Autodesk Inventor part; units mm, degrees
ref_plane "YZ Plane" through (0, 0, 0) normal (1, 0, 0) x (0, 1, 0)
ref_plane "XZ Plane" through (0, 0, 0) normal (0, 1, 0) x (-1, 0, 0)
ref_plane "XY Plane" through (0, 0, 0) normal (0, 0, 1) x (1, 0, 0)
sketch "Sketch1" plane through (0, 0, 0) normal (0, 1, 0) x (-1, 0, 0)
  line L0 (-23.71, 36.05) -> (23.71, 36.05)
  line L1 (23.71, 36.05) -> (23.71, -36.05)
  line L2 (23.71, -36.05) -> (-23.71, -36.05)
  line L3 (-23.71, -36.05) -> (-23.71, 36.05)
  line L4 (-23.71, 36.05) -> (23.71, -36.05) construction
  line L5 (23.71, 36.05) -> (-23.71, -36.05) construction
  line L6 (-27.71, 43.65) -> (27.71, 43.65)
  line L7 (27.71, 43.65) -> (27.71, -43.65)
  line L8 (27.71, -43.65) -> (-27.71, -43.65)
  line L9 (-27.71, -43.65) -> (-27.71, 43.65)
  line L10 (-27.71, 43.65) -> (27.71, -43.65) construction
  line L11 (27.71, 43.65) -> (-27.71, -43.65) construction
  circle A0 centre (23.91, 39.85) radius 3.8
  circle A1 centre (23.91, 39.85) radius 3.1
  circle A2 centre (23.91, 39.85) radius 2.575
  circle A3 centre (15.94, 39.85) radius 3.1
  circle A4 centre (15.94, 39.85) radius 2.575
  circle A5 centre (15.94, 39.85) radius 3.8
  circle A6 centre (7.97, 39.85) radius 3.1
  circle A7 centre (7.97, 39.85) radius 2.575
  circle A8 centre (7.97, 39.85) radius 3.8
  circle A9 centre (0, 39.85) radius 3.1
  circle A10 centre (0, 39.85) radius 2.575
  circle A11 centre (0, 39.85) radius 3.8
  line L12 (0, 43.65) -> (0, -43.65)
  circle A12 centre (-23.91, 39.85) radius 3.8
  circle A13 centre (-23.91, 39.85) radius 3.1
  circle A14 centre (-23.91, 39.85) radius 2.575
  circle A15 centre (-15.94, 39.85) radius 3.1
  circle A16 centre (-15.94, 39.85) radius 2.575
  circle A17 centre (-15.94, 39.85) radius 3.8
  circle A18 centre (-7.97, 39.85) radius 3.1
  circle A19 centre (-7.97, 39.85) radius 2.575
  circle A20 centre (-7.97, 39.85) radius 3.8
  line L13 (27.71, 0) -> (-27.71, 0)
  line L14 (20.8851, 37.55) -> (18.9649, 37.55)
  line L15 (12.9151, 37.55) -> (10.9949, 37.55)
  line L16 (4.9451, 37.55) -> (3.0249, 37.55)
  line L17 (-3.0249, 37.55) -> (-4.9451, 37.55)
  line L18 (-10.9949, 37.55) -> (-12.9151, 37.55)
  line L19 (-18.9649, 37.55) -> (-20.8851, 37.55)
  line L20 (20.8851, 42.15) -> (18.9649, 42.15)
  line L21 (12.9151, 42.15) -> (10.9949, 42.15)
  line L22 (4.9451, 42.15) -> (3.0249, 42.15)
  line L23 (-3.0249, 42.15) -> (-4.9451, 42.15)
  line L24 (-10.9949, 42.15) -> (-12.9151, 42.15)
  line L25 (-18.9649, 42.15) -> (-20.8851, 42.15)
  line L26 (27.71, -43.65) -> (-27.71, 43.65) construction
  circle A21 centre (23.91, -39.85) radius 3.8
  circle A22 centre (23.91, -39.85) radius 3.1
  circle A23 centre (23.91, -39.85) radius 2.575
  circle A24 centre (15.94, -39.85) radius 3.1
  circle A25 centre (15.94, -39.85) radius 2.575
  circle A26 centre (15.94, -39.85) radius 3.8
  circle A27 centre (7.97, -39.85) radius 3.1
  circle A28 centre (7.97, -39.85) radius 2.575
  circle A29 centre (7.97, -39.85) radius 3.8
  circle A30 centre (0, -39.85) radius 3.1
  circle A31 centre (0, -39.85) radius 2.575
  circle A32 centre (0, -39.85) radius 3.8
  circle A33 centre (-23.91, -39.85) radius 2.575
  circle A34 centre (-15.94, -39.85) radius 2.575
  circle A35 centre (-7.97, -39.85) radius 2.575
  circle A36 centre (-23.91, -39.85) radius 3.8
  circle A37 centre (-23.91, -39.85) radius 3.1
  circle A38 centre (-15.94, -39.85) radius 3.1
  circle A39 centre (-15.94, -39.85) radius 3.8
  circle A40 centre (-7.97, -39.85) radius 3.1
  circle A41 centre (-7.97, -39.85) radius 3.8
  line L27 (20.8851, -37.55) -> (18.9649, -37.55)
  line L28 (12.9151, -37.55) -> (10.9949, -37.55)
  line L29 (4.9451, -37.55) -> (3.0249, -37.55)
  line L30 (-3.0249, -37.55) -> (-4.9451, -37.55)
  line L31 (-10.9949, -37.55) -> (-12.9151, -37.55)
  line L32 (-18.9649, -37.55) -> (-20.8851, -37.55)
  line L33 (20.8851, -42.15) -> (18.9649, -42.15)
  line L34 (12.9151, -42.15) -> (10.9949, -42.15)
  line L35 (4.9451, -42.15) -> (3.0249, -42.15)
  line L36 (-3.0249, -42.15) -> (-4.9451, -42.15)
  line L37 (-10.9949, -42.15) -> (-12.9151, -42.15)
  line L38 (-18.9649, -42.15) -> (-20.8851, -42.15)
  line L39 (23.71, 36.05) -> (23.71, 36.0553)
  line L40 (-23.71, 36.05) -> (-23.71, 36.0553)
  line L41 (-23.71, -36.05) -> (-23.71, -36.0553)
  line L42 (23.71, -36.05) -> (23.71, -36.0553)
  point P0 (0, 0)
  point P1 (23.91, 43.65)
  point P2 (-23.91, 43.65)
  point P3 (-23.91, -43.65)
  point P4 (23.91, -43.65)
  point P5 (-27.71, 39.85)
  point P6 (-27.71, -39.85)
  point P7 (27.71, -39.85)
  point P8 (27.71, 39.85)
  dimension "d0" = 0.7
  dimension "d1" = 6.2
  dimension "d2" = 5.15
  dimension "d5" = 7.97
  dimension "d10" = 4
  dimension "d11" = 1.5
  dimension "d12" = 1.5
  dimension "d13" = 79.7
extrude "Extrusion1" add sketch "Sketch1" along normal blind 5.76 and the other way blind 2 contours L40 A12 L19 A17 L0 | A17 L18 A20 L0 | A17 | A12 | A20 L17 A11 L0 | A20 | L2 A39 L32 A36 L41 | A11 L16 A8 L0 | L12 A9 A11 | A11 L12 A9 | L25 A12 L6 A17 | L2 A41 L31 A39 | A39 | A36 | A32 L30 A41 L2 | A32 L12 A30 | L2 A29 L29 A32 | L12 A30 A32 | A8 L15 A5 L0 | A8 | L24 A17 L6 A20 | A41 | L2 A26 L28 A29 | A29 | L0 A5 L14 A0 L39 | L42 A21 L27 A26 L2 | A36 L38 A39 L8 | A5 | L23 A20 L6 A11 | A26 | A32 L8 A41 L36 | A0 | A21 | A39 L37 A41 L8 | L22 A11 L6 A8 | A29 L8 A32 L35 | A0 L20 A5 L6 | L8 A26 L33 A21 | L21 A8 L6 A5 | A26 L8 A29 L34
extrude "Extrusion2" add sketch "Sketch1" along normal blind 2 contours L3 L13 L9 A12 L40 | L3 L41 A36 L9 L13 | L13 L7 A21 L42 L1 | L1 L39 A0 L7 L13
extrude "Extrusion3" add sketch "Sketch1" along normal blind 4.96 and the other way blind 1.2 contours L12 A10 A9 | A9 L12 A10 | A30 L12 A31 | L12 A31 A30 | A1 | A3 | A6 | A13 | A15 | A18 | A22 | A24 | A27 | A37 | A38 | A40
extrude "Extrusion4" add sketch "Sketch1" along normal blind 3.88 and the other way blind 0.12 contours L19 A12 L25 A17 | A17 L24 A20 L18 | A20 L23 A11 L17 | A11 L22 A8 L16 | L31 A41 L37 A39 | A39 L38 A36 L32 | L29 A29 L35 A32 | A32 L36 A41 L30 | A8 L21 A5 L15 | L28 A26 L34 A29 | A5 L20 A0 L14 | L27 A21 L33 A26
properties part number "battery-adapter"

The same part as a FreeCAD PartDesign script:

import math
import FreeCAD as App
import Part
import Sketcher

V = App.Vector
Q = App.Units.Quantity

doc = App.newDocument("Part")
params = doc.addObject("Spreadsheet::Sheet", "Params")
for row, (alias, value) in enumerate([
    ("sketch1_diameter", "6.2 mm"),
    ("sketch1_radius", "3.8 mm"),
    ("sketch1_width", "47.42 mm"),
    ("pad1_length", "5.76 mm"),
    ("pad1_length2", "2 mm"),
    ("sketch2_height", "79.7 mm"),
    ("sketch2_radius", "3.8 mm"),
    ("pad2_length", "2 mm"),
    ("sketch3_diameter", "6.2 mm"),
    ("sketch3_diameter2", "5.15 mm"),
    ("pad3_length", "4.96 mm"),
    ("pad3_length2", "1.2 mm"),
    ("sketch4_radius", "3.8 mm"),
    ("pad4_length", "3.88 mm"),
    ("pad4_length2", "0.12 mm"),
], start=1):
    params.set(f"A{row}", alias)
    params.set(f"B{row}", "=" + value)
    params.setAlias(f"B{row}", alias)

body = doc.addObject("PartDesign::Body", "Body")
body.AllowCompound = True

sketch1 = doc.addObject("Sketcher::SketchObject", "Sketch")
body.addObject(sketch1)
sketch1.AttachmentSupport = (doc.XZ_Plane, [""])
sketch1.MapMode = "FlatFace"
sketch1.addGeometry([
    Part.LineSegment(V(23.71, 36.055, 0), V(23.71, 36.05, 0)),
    Part.LineSegment(V(23.71, 36.05, 0), V(-23.71, 36.05, 0)),
    Part.LineSegment(V(-23.71, 36.05, 0), V(-23.71, 36.055, 0)),
    Part.ArcOfCircle(Part.Circle(V(-23.91, 39.85, 0), V(0, 0, 1), 3.8), math.radians(90), math.radians(273)),
    Part.LineSegment(V(-23.91, 43.65, 0), V(23.91, 43.65, 0)),
    Part.ArcOfCircle(Part.Circle(V(23.91, 39.85, 0), V(0, 0, 1), 3.8), math.radians(-93), math.radians(90)),
    Part.LineSegment(V(18.965, 37.55, 0), V(20.885, 37.55, 0)),
    Part.ArcOfCircle(Part.Circle(V(23.91, 39.85, 0), V(0, 0, 1), 3.8), math.radians(143), math.radians(217)),
    Part.LineSegment(V(20.885, 42.15, 0), V(18.965, 42.15, 0)),
    Part.ArcOfCircle(Part.Circle(V(15.94, 39.85, 0), V(0, 0, 1), 3.8), math.radians(-37), math.radians(37)),
    Part.Circle(V(23.91, 39.85, 0), V(0, 0, 1), 3.1),
    Part.Circle(V(15.94, 39.85, 0), V(0, 0, 1), 3.1),
    Part.LineSegment(V(12.915, 42.15, 0), V(10.995, 42.15, 0)),
    Part.ArcOfCircle(Part.Circle(V(7.97, 39.85, 0), V(0, 0, 1), 3.8), math.radians(-37), math.radians(37)),
    Part.LineSegment(V(10.995, 37.55, 0), V(12.915, 37.55, 0)),
    Part.ArcOfCircle(Part.Circle(V(15.94, 39.85, 0), V(0, 0, 1), 3.8), math.radians(143), math.radians(217)),
    Part.Circle(V(7.97, 39.85, 0), V(0, 0, 1), 3.1),
    Part.LineSegment(V(4.945, 42.15, 0), V(3.025, 42.15, 0)),
    Part.ArcOfCircle(Part.Circle(V(0, 39.85, 0), V(0, 0, 1), 3.8), math.radians(-37), math.radians(37)),
    Part.LineSegment(V(3.025, 37.55, 0), V(4.945, 37.55, 0)),
    Part.ArcOfCircle(Part.Circle(V(7.97, 39.85, 0), V(0, 0, 1), 3.8), math.radians(143), math.radians(217)),
    Part.Circle(V(0, 39.85, 0), V(0, 0, 1), 3.1),
    Part.ArcOfCircle(Part.Circle(V(0, 39.85, 0), V(0, 0, 1), 3.8), math.radians(143), math.radians(217)),
    Part.LineSegment(V(-3.025, 42.15, 0), V(-4.945, 42.15, 0)),
    Part.ArcOfCircle(Part.Circle(V(-7.97, 39.85, 0), V(0, 0, 1), 3.8), math.radians(-37), math.radians(37)),
    Part.LineSegment(V(-4.945, 37.55, 0), V(-3.025, 37.55, 0)),
    Part.Circle(V(-7.97, 39.85, 0), V(0, 0, 1), 3.1),
    Part.LineSegment(V(-10.995, 42.15, 0), V(-12.915, 42.15, 0)),
    Part.ArcOfCircle(Part.Circle(V(-15.94, 39.85, 0), V(0, 0, 1), 3.8), math.radians(-37), math.radians(37)),
    Part.LineSegment(V(-12.915, 37.55, 0), V(-10.995, 37.55, 0)),
    Part.ArcOfCircle(Part.Circle(V(-7.97, 39.85, 0), V(0, 0, 1), 3.8), math.radians(143), math.radians(217)),
    Part.Circle(V(-15.94, 39.85, 0), V(0, 0, 1), 3.1),
    Part.LineSegment(V(-18.965, 42.15, 0), V(-20.885, 42.15, 0)),
    Part.ArcOfCircle(Part.Circle(V(-23.91, 39.85, 0), V(0, 0, 1), 3.8), math.radians(-37), math.radians(37)),
    Part.LineSegment(V(-20.885, 37.55, 0), V(-18.965, 37.55, 0)),
    Part.ArcOfCircle(Part.Circle(V(-15.94, 39.85, 0), V(0, 0, 1), 3.8), math.radians(143), math.radians(217)),
    Part.Circle(V(-23.91, 39.85, 0), V(0, 0, 1), 3.1),
    Part.LineSegment(V(23.71, -36.05, 0), V(23.71, -36.055, 0)),
    Part.ArcOfCircle(Part.Circle(V(23.91, -39.85, 0), V(0, 0, 1), 3.8), math.radians(-90), math.radians(93)),
    Part.LineSegment(V(23.91, -43.65, 0), V(-23.91, -43.65, 0)),
    Part.ArcOfCircle(Part.Circle(V(-23.91, -39.85, 0), V(0, 0, 1), 3.8), math.radians(87), math.radians(270)),
    Part.LineSegment(V(-23.71, -36.055, 0), V(-23.71, -36.05, 0)),
    Part.LineSegment(V(-23.71, -36.05, 0), V(23.71, -36.05, 0)),
    Part.LineSegment(V(20.885, -37.55, 0), V(18.965, -37.55, 0)),
    Part.ArcOfCircle(Part.Circle(V(15.94, -39.85, 0), V(0, 0, 1), 3.8), math.radians(-37), math.radians(37)),
    Part.LineSegment(V(18.965, -42.15, 0), V(20.885, -42.15, 0)),
    Part.ArcOfCircle(Part.Circle(V(23.91, -39.85, 0), V(0, 0, 1), 3.8), math.radians(143), math.radians(217)),
    Part.LineSegment(V(12.915, -37.55, 0), V(10.995, -37.55, 0)),
    Part.ArcOfCircle(Part.Circle(V(7.97, -39.85, 0), V(0, 0, 1), 3.8), math.radians(-37), math.radians(37)),
    Part.LineSegment(V(10.995, -42.15, 0), V(12.915, -42.15, 0)),
    Part.ArcOfCircle(Part.Circle(V(15.94, -39.85, 0), V(0, 0, 1), 3.8), math.radians(143), math.radians(217)),
    Part.Circle(V(15.94, -39.85, 0), V(0, 0, 1), 3.1),
    Part.Circle(V(23.91, -39.85, 0), V(0, 0, 1), 3.1),
    Part.LineSegment(V(4.945, -37.55, 0), V(3.025, -37.55, 0)),
    Part.ArcOfCircle(Part.Circle(V(0, -39.85, 0), V(0, 0, 1), 3.8), math.radians(-37), math.radians(37)),
    Part.LineSegment(V(3.025, -42.15, 0), V(4.945, -42.15, 0)),
    Part.ArcOfCircle(Part.Circle(V(7.97, -39.85, 0), V(0, 0, 1), 3.8), math.radians(143), math.radians(217)),
    Part.Circle(V(7.97, -39.85, 0), V(0, 0, 1), 3.1),
    Part.Circle(V(0, -39.85, 0), V(0, 0, 1), 3.1),
    Part.LineSegment(V(-3.025, -37.55, 0), V(-4.945, -37.55, 0)),
    Part.ArcOfCircle(Part.Circle(V(-7.97, -39.85, 0), V(0, 0, 1), 3.8), math.radians(-37), math.radians(37)),
    Part.LineSegment(V(-4.945, -42.15, 0), V(-3.025, -42.15, 0)),
    Part.ArcOfCircle(Part.Circle(V(0, -39.85, 0), V(0, 0, 1), 3.8), math.radians(143), math.radians(217)),
    Part.LineSegment(V(-10.995, -37.55, 0), V(-12.915, -37.55, 0)),
    Part.ArcOfCircle(Part.Circle(V(-15.94, -39.85, 0), V(0, 0, 1), 3.8), math.radians(-37), math.radians(37)),
    Part.LineSegment(V(-12.915, -42.15, 0), V(-10.995, -42.15, 0)),
    Part.ArcOfCircle(Part.Circle(V(-7.97, -39.85, 0), V(0, 0, 1), 3.8), math.radians(143), math.radians(217)),
    Part.Circle(V(-7.97, -39.85, 0), V(0, 0, 1), 3.1),
    Part.LineSegment(V(-18.965, -37.55, 0), V(-20.885, -37.55, 0)),
    Part.ArcOfCircle(Part.Circle(V(-23.91, -39.85, 0), V(0, 0, 1), 3.8), math.radians(-37), math.radians(37)),
    Part.LineSegment(V(-20.885, -42.15, 0), V(-18.965, -42.15, 0)),
    Part.ArcOfCircle(Part.Circle(V(-15.94, -39.85, 0), V(0, 0, 1), 3.8), math.radians(143), math.radians(217)),
    Part.Circle(V(-15.94, -39.85, 0), V(0, 0, 1), 3.1),
    Part.Circle(V(-23.91, -39.85, 0), V(0, 0, 1), 3.1),
], False)
sketch1.addConstraint([
    Sketcher.Constraint("Coincident", 0, 2, 1, 1),
    Sketcher.Constraint("Coincident", 1, 2, 2, 1),
    Sketcher.Constraint("Coincident", 2, 2, 3, 2),
    Sketcher.Constraint("Tangent", 3, 1, 4, 1),
    Sketcher.Constraint("Tangent", 4, 2, 5, 2),
    Sketcher.Constraint("Coincident", 5, 1, 0, 1),
    Sketcher.Constraint("Coincident", 6, 2, 7, 2),
    Sketcher.Constraint("Coincident", 7, 1, 8, 1),
    Sketcher.Constraint("Coincident", 8, 2, 9, 2),
    Sketcher.Constraint("Coincident", 9, 1, 6, 1),
    Sketcher.Constraint("Coincident", 12, 2, 13, 2),
    Sketcher.Constraint("Coincident", 13, 1, 14, 1),
    Sketcher.Constraint("Coincident", 14, 2, 15, 2),
    Sketcher.Constraint("Coincident", 15, 1, 12, 1),
    Sketcher.Constraint("Coincident", 17, 2, 18, 2),
    Sketcher.Constraint("Coincident", 18, 1, 19, 1),
    Sketcher.Constraint("Coincident", 19, 2, 20, 2),
    Sketcher.Constraint("Coincident", 20, 1, 17, 1),
    Sketcher.Constraint("Coincident", 22, 1, 23, 1),
    Sketcher.Constraint("Coincident", 23, 2, 24, 2),
    Sketcher.Constraint("Coincident", 24, 1, 25, 1),
    Sketcher.Constraint("Coincident", 25, 2, 22, 2),
    Sketcher.Constraint("Coincident", 27, 2, 28, 2),
    Sketcher.Constraint("Coincident", 28, 1, 29, 1),
    Sketcher.Constraint("Coincident", 29, 2, 30, 2),
    Sketcher.Constraint("Coincident", 30, 1, 27, 1),
    Sketcher.Constraint("Coincident", 32, 2, 33, 2),
    Sketcher.Constraint("Coincident", 33, 1, 34, 1),
    Sketcher.Constraint("Coincident", 34, 2, 35, 2),
    Sketcher.Constraint("Coincident", 35, 1, 32, 1),
    Sketcher.Constraint("Coincident", 37, 2, 38, 2),
    Sketcher.Constraint("Tangent", 38, 1, 39, 1),
    Sketcher.Constraint("Tangent", 39, 2, 40, 2),
    Sketcher.Constraint("Coincident", 40, 1, 41, 1),
    Sketcher.Constraint("Coincident", 41, 2, 42, 1),
    Sketcher.Constraint("Coincident", 42, 2, 37, 1),
    Sketcher.Constraint("Coincident", 43, 2, 44, 2),
    Sketcher.Constraint("Coincident", 44, 1, 45, 1),
    Sketcher.Constraint("Coincident", 45, 2, 46, 2),
    Sketcher.Constraint("Coincident", 46, 1, 43, 1),
    Sketcher.Constraint("Coincident", 47, 2, 48, 2),
    Sketcher.Constraint("Coincident", 48, 1, 49, 1),
    Sketcher.Constraint("Coincident", 49, 2, 50, 2),
    Sketcher.Constraint("Coincident", 50, 1, 47, 1),
    Sketcher.Constraint("Coincident", 53, 2, 54, 2),
    Sketcher.Constraint("Coincident", 54, 1, 55, 1),
    Sketcher.Constraint("Coincident", 55, 2, 56, 2),
    Sketcher.Constraint("Coincident", 56, 1, 53, 1),
    Sketcher.Constraint("Coincident", 59, 2, 60, 2),
    Sketcher.Constraint("Coincident", 60, 1, 61, 1),
    Sketcher.Constraint("Coincident", 61, 2, 62, 2),
    Sketcher.Constraint("Coincident", 62, 1, 59, 1),
    Sketcher.Constraint("Coincident", 63, 2, 64, 2),
    Sketcher.Constraint("Coincident", 64, 1, 65, 1),
    Sketcher.Constraint("Coincident", 65, 2, 66, 2),
    Sketcher.Constraint("Coincident", 66, 1, 63, 1),
    Sketcher.Constraint("Coincident", 68, 2, 69, 2),
    Sketcher.Constraint("Coincident", 69, 1, 70, 1),
    Sketcher.Constraint("Coincident", 70, 2, 71, 2),
    Sketcher.Constraint("Coincident", 71, 1, 68, 1),
    Sketcher.Constraint("Vertical", 0),
    Sketcher.Constraint("Horizontal", 1),
    Sketcher.Constraint("Vertical", 2),
    Sketcher.Constraint("Horizontal", 4),
    Sketcher.Constraint("Horizontal", 6),
    Sketcher.Constraint("Horizontal", 8),
    Sketcher.Constraint("Horizontal", 12),
    Sketcher.Constraint("Horizontal", 14),
    Sketcher.Constraint("Horizontal", 17),
    Sketcher.Constraint("Horizontal", 19),
    Sketcher.Constraint("Horizontal", 23),
    Sketcher.Constraint("Horizontal", 25),
    Sketcher.Constraint("Horizontal", 27),
    Sketcher.Constraint("Horizontal", 29),
    Sketcher.Constraint("Horizontal", 32),
    Sketcher.Constraint("Horizontal", 34),
    Sketcher.Constraint("Vertical", 37),
    Sketcher.Constraint("Horizontal", 39),
    Sketcher.Constraint("Vertical", 41),
    Sketcher.Constraint("Horizontal", 42),
    Sketcher.Constraint("Horizontal", 43),
    Sketcher.Constraint("Horizontal", 45),
    Sketcher.Constraint("Horizontal", 47),
    Sketcher.Constraint("Horizontal", 49),
    Sketcher.Constraint("Horizontal", 53),
    Sketcher.Constraint("Horizontal", 55),
    Sketcher.Constraint("Horizontal", 59),
    Sketcher.Constraint("Horizontal", 61),
    Sketcher.Constraint("Horizontal", 63),
    Sketcher.Constraint("Horizontal", 65),
    Sketcher.Constraint("Horizontal", 68),
    Sketcher.Constraint("Horizontal", 70),
    Sketcher.Constraint("Coincident", 7, 3, 5, 3),
    Sketcher.Constraint("Coincident", 10, 3, 5, 3),
    Sketcher.Constraint("Coincident", 11, 3, 9, 3),
    Sketcher.Constraint("Coincident", 15, 3, 9, 3),
    Sketcher.Constraint("Coincident", 16, 3, 13, 3),
    Sketcher.Constraint("Coincident", 20, 3, 13, 3),
    Sketcher.Constraint("Coincident", 21, 3, 18, 3),
    Sketcher.Constraint("Coincident", 22, 3, 18, 3),
    Sketcher.Constraint("Coincident", 26, 3, 24, 3),
    Sketcher.Constraint("Coincident", 30, 3, 24, 3),
    Sketcher.Constraint("Coincident", 31, 3, 28, 3),
    Sketcher.Constraint("Coincident", 33, 3, 3, 3),
    Sketcher.Constraint("Coincident", 35, 3, 28, 3),
    Sketcher.Constraint("Coincident", 36, 3, 3, 3),
    Sketcher.Constraint("Coincident", 46, 3, 38, 3),
    Sketcher.Constraint("Coincident", 50, 3, 44, 3),
    Sketcher.Constraint("Coincident", 51, 3, 44, 3),
    Sketcher.Constraint("Coincident", 52, 3, 38, 3),
    Sketcher.Constraint("Coincident", 56, 3, 48, 3),
    Sketcher.Constraint("Coincident", 57, 3, 48, 3),
    Sketcher.Constraint("Coincident", 58, 3, 54, 3),
    Sketcher.Constraint("Coincident", 62, 3, 54, 3),
    Sketcher.Constraint("Coincident", 66, 3, 60, 3),
    Sketcher.Constraint("Coincident", 67, 3, 60, 3),
    Sketcher.Constraint("Coincident", 69, 3, 40, 3),
    Sketcher.Constraint("Coincident", 71, 3, 64, 3),
    Sketcher.Constraint("Coincident", 72, 3, 64, 3),
    Sketcher.Constraint("Coincident", 73, 3, 40, 3),
    Sketcher.Constraint("Equal", 3, 5),
    Sketcher.Constraint("Equal", 5, 7),
    Sketcher.Constraint("Equal", 7, 9),
    Sketcher.Constraint("Equal", 10, 11),
    Sketcher.Constraint("Equal", 9, 13),
    Sketcher.Constraint("Equal", 13, 15),
    Sketcher.Constraint("Equal", 11, 16),
    Sketcher.Constraint("Equal", 15, 18),
    Sketcher.Constraint("Equal", 18, 20),
    Sketcher.Constraint("Equal", 16, 21),
    Sketcher.Constraint("Equal", 20, 22),
    Sketcher.Constraint("Equal", 22, 24),
    Sketcher.Constraint("Equal", 21, 26),
    Sketcher.Constraint("Equal", 24, 28),
    Sketcher.Constraint("Equal", 28, 30),
    Sketcher.Constraint("Equal", 26, 31),
    Sketcher.Constraint("Equal", 30, 33),
    Sketcher.Constraint("Equal", 33, 35),
    Sketcher.Constraint("Equal", 31, 36),
    Sketcher.Constraint("Equal", 35, 38),
    Sketcher.Constraint("Equal", 38, 40),
    Sketcher.Constraint("Equal", 40, 44),
    Sketcher.Constraint("Equal", 44, 46),
    Sketcher.Constraint("Equal", 46, 48),
    Sketcher.Constraint("Equal", 48, 50),
    Sketcher.Constraint("Equal", 36, 51),
    Sketcher.Constraint("Equal", 51, 52),
    Sketcher.Constraint("Equal", 50, 54),
    Sketcher.Constraint("Equal", 54, 56),
    Sketcher.Constraint("Equal", 52, 57),
    Sketcher.Constraint("Equal", 57, 58),
    Sketcher.Constraint("Equal", 56, 60),
    Sketcher.Constraint("Equal", 60, 62),
    Sketcher.Constraint("Equal", 62, 64),
    Sketcher.Constraint("Equal", 64, 66),
    Sketcher.Constraint("Equal", 58, 67),
    Sketcher.Constraint("Equal", 66, 69),
    Sketcher.Constraint("Equal", 69, 71),
    Sketcher.Constraint("Equal", 67, 72),
    Sketcher.Constraint("Equal", 72, 73),
    Sketcher.Constraint("Symmetric", 3, 3, 38, 3, -1, 1),
    Sketcher.Constraint("Symmetric", 28, 3, 44, 3, -1, 1),
    Sketcher.Constraint("Symmetric", 24, 3, 48, 3, -1, 1),
    Sketcher.Constraint("Symmetric", 18, 3, 54, 3, -1, 1),
    Sketcher.Constraint("Symmetric", 13, 3, 60, 3, -1, 1),
    Sketcher.Constraint("Symmetric", 9, 3, 64, 3, -1, 1),
    Sketcher.Constraint("Symmetric", 5, 1, 40, 1, -1, 1),
    Sketcher.Constraint("Symmetric", 1, 2, 42, 2, -1, 1),
    Sketcher.Constraint("Symmetric", 13, 3, 24, 3, -2),
    Sketcher.Constraint("Symmetric", 9, 3, 28, 3, -2),
    Sketcher.Constraint("Symmetric", 2, 2, 5, 1, -2),
    Sketcher.Constraint("Symmetric", 17, 2, 22, 1, -2),
    Sketcher.Constraint("Horizontal", 7, 3, 9, 3),
    Sketcher.Constraint("Horizontal", 11, 3, 13, 3),
    Sketcher.Constraint("Horizontal", 16, 3, 18, 3),
    Sketcher.Constraint("Horizontal", 8, 2, 12, 2),
    Sketcher.Constraint("Horizontal", 9, 1, 13, 1),
    Sketcher.Constraint("Horizontal", 15, 1, 17, 2),
    Sketcher.Constraint("Horizontal", 14, 2, 18, 1),
    Sketcher.Constraint("Horizontal", 19, 2, 24, 1),
    Sketcher.Constraint("Horizontal", 23, 2, 27, 2),
    Sketcher.Constraint("Horizontal", 25, 2, 28, 1),
    Sketcher.Constraint("Horizontal", 30, 1, 32, 2),
    Sketcher.Constraint("Horizontal", 29, 2, 33, 1),
    Sketcher.Constraint("Horizontal", 46, 1, 47, 2),
    Sketcher.Constraint("Horizontal", 45, 2, 48, 1),
    Sketcher.Constraint("Horizontal", 50, 1, 53, 2),
    Sketcher.Constraint("Horizontal", 49, 2, 54, 1),
    Sketcher.Constraint("Horizontal", 56, 1, 59, 2),
    Sketcher.Constraint("Horizontal", 55, 2, 60, 1),
    Sketcher.Constraint("Horizontal", 62, 1, 63, 2),
    Sketcher.Constraint("Horizontal", 61, 2, 64, 1),
    Sketcher.Constraint("Horizontal", 66, 1, 68, 2),
    Sketcher.Constraint("Horizontal", 65, 2, 69, 1),
    Sketcher.Constraint("Vertical", 6, 2, 7, 1),
    Sketcher.Constraint("Vertical", 9, 1, 43, 2),
    Sketcher.Constraint("Vertical", 43, 2, 44, 1),
    Sketcher.Constraint("Equal", 8, 12),
    Sketcher.Constraint("Equal", 14, 17),
    Sketcher.Constraint("Diameter", 10, Q("6.2 mm")),
    Sketcher.Constraint("Radius", 3, Q("3.8 mm")),
    Sketcher.Constraint("DistanceX", -1, 1, 13, 3, Q("7.97 mm")),
    Sketcher.Constraint("DistanceX", 1, 2, 1, 1, Q("47.42 mm")),
    Sketcher.Constraint("DistanceY", -1, 1, 3, 3, Q("39.85 mm")),
    Sketcher.Constraint("DistanceY", -1, 1, 0, 2, Q("36.05 mm")),
    Sketcher.Constraint("DistanceY", -1, 1, 6, 2, Q("37.55 mm")),
])
sketch1.setExpression("Constraints[199]", "Params.sketch1_diameter")
sketch1.setExpression("Constraints[200]", "Params.sketch1_radius")
sketch1.setExpression("Constraints[202]", "Params.sketch1_width")
pad1 = doc.addObject("PartDesign::Pad", "Pad")
body.addObject(pad1)
pad1.Profile = sketch1
pad1.Type = "TwoLengths"
pad1.setExpression("Length", "Params.pad1_length")
pad1.setExpression("Length2", "Params.pad1_length2")
pad1.Reversed = True

sketch2 = doc.addObject("Sketcher::SketchObject", "Sketch001")
body.addObject(sketch2)
sketch2.AttachmentSupport = (doc.XZ_Plane, [""])
sketch2.MapMode = "FlatFace"
sketch2.addGeometry([
    Part.ArcOfCircle(Part.Circle(V(23.9, 39.9, 0), V(0, 0, 1), 3.8), math.radians(-93), math.radians(0)),
    Part.LineSegment(V(27.7, 39.9, 0), V(27.7, -39.9, 0)),
    Part.ArcOfCircle(Part.Circle(V(23.9, -39.9, 0), V(0, 0, 1), 3.8), math.radians(0), math.radians(93)),
    Part.LineSegment(V(23.7, -36.1, 0), V(23.7, 36.1, 0)),
    Part.LineSegment(V(-27.7, -39.9, 0), V(-27.7, 39.9, 0)),
    Part.ArcOfCircle(Part.Circle(V(-23.9, 39.9, 0), V(0, 0, 1), 3.8), math.radians(180), math.radians(273)),
    Part.LineSegment(V(-23.7, 36.1, 0), V(-23.7, -36.1, 0)),
    Part.ArcOfCircle(Part.Circle(V(-23.9, -39.9, 0), V(0, 0, 1), 3.8), math.radians(87), math.radians(180)),
], False)
sketch2.addConstraint([
    Sketcher.Constraint("Tangent", 0, 2, 1, 1),
    Sketcher.Constraint("Tangent", 1, 2, 2, 1),
    Sketcher.Constraint("Coincident", 2, 2, 3, 1),
    Sketcher.Constraint("Coincident", 3, 2, 0, 1),
    Sketcher.Constraint("Tangent", 4, 2, 5, 1),
    Sketcher.Constraint("Coincident", 5, 2, 6, 1),
    Sketcher.Constraint("Coincident", 6, 2, 7, 1),
    Sketcher.Constraint("Tangent", 7, 2, 4, 1),
    Sketcher.Constraint("Vertical", 1),
    Sketcher.Constraint("Vertical", 3),
    Sketcher.Constraint("Vertical", 4),
    Sketcher.Constraint("Vertical", 6),
    Sketcher.Constraint("Equal", 0, 2),
    Sketcher.Constraint("Equal", 2, 5),
    Sketcher.Constraint("Equal", 5, 7),
    Sketcher.Constraint("Symmetric", 2, 3, 5, 3, -1, 1),
    Sketcher.Constraint("Symmetric", 3, 2, 6, 2, -1, 1),
    Sketcher.Constraint("Horizontal", 0, 3, 5, 3),
    Sketcher.Constraint("DistanceY", 1, 2, 1, 1, Q("79.7 mm")),
    Sketcher.Constraint("DistanceX", 2, 2, 1, 2, Q("4 mm")),
    Sketcher.Constraint("Radius", 0, Q("3.8 mm")),
    Sketcher.Constraint("DistanceX", -1, 1, 0, 3, Q("23.91 mm")),
])
sketch2.setExpression("Constraints[18]", "Params.sketch2_height")
sketch2.setExpression("Constraints[20]", "Params.sketch2_radius")
pad2 = doc.addObject("PartDesign::Pad", "Pad001")
body.addObject(pad2)
pad2.Profile = sketch2
pad2.setExpression("Length", "Params.pad2_length")
pad2.Reversed = True

sketch3 = doc.addObject("Sketcher::SketchObject", "Sketch002")
body.addObject(sketch3)
sketch3.AttachmentSupport = (doc.XZ_Plane, [""])
sketch3.MapMode = "FlatFace"
sketch3.addGeometry([
    Part.Circle(V(0, 39.9, 0), V(0, 0, 1), 3.1),
    Part.Circle(V(0, 39.9, 0), V(0, 0, 1), 2.6),
    Part.Circle(V(0, -39.9, 0), V(0, 0, 1), 3.1),
    Part.Circle(V(0, -39.9, 0), V(0, 0, 1), 2.6),
    Part.Circle(V(-23.9, 39.9, 0), V(0, 0, 1), 3.1),
    Part.Circle(V(-23.9, 39.9, 0), V(0, 0, 1), 2.6),
    Part.Circle(V(-15.9, 39.9, 0), V(0, 0, 1), 3.1),
    Part.Circle(V(-15.9, 39.9, 0), V(0, 0, 1), 2.6),
    Part.Circle(V(-8, 39.9, 0), V(0, 0, 1), 3.1),
    Part.Circle(V(-8, 39.9, 0), V(0, 0, 1), 2.6),
    Part.Circle(V(23.9, 39.9, 0), V(0, 0, 1), 3.1),
    Part.Circle(V(23.9, 39.9, 0), V(0, 0, 1), 2.6),
    Part.Circle(V(15.9, 39.9, 0), V(0, 0, 1), 3.1),
    Part.Circle(V(15.9, 39.9, 0), V(0, 0, 1), 2.6),
    Part.Circle(V(8, 39.9, 0), V(0, 0, 1), 3.1),
    Part.Circle(V(8, 39.9, 0), V(0, 0, 1), 2.6),
    Part.Circle(V(-23.9, -39.9, 0), V(0, 0, 1), 3.1),
    Part.Circle(V(-23.9, -39.9, 0), V(0, 0, 1), 2.6),
    Part.Circle(V(-15.9, -39.9, 0), V(0, 0, 1), 3.1),
    Part.Circle(V(-15.9, -39.9, 0), V(0, 0, 1), 2.6),
    Part.Circle(V(-8, -39.9, 0), V(0, 0, 1), 3.1),
    Part.Circle(V(-8, -39.9, 0), V(0, 0, 1), 2.6),
    Part.Circle(V(23.9, -39.9, 0), V(0, 0, 1), 3.1),
    Part.Circle(V(23.9, -39.9, 0), V(0, 0, 1), 2.6),
    Part.Circle(V(15.9, -39.9, 0), V(0, 0, 1), 3.1),
    Part.Circle(V(15.9, -39.9, 0), V(0, 0, 1), 2.6),
    Part.Circle(V(8, -39.9, 0), V(0, 0, 1), 3.1),
    Part.Circle(V(8, -39.9, 0), V(0, 0, 1), 2.6),
], False)
sketch3.addConstraint([
    Sketcher.Constraint("Coincident", 1, 3, 0, 3),
    Sketcher.Constraint("Coincident", 3, 3, 2, 3),
    Sketcher.Constraint("Coincident", 5, 3, 4, 3),
    Sketcher.Constraint("Coincident", 7, 3, 6, 3),
    Sketcher.Constraint("Coincident", 9, 3, 8, 3),
    Sketcher.Constraint("Coincident", 11, 3, 10, 3),
    Sketcher.Constraint("Coincident", 13, 3, 12, 3),
    Sketcher.Constraint("Coincident", 15, 3, 14, 3),
    Sketcher.Constraint("Coincident", 17, 3, 16, 3),
    Sketcher.Constraint("Coincident", 19, 3, 18, 3),
    Sketcher.Constraint("Coincident", 21, 3, 20, 3),
    Sketcher.Constraint("Coincident", 23, 3, 22, 3),
    Sketcher.Constraint("Coincident", 25, 3, 24, 3),
    Sketcher.Constraint("Coincident", 27, 3, 26, 3),
    Sketcher.Constraint("Equal", 0, 2),
    Sketcher.Constraint("Equal", 1, 3),
    Sketcher.Constraint("Equal", 2, 4),
    Sketcher.Constraint("Equal", 3, 5),
    Sketcher.Constraint("Equal", 4, 6),
    Sketcher.Constraint("Equal", 5, 7),
    Sketcher.Constraint("Equal", 6, 8),
    Sketcher.Constraint("Equal", 7, 9),
    Sketcher.Constraint("Equal", 8, 10),
    Sketcher.Constraint("Equal", 9, 11),
    Sketcher.Constraint("Equal", 10, 12),
    Sketcher.Constraint("Equal", 11, 13),
    Sketcher.Constraint("Equal", 12, 14),
    Sketcher.Constraint("Equal", 13, 15),
    Sketcher.Constraint("Equal", 14, 16),
    Sketcher.Constraint("Equal", 15, 17),
    Sketcher.Constraint("Equal", 16, 18),
    Sketcher.Constraint("Equal", 17, 19),
    Sketcher.Constraint("Equal", 18, 20),
    Sketcher.Constraint("Equal", 19, 21),
    Sketcher.Constraint("Equal", 20, 22),
    Sketcher.Constraint("Equal", 21, 23),
    Sketcher.Constraint("Equal", 22, 24),
    Sketcher.Constraint("Equal", 23, 25),
    Sketcher.Constraint("Equal", 24, 26),
    Sketcher.Constraint("Equal", 25, 27),
    Sketcher.Constraint("Symmetric", 0, 3, 2, 3, -1, 1),
    Sketcher.Constraint("Symmetric", 10, 3, 16, 3, -1, 1),
    Sketcher.Constraint("Symmetric", 12, 3, 18, 3, -1, 1),
    Sketcher.Constraint("Symmetric", 14, 3, 20, 3, -1, 1),
    Sketcher.Constraint("Symmetric", 4, 3, 22, 3, -1, 1),
    Sketcher.Constraint("Symmetric", 6, 3, 24, 3, -1, 1),
    Sketcher.Constraint("Symmetric", 8, 3, 26, 3, -1, 1),
    Sketcher.Constraint("Symmetric", 4, 3, 10, 3, -2),
    Sketcher.Constraint("Symmetric", 6, 3, 12, 3, -2),
    Sketcher.Constraint("Symmetric", 8, 3, 14, 3, -2),
    Sketcher.Constraint("PointOnObject", 0, 3, -2),
    Sketcher.Constraint("Horizontal", 1, 3, 4, 3),
    Sketcher.Constraint("Horizontal", 5, 3, 6, 3),
    Sketcher.Constraint("Horizontal", 7, 3, 8, 3),
    Sketcher.Constraint("Diameter", 0, Q("6.2 mm")),
    Sketcher.Constraint("Diameter", 1, Q("5.15 mm")),
    Sketcher.Constraint("DistanceY", 2, 3, 0, 3, Q("79.7 mm")),
    Sketcher.Constraint("DistanceX", 8, 3, -1, 1, Q("7.97 mm")),
    Sketcher.Constraint("DistanceX", 4, 3, 6, 3, Q("7.97 mm")),
    Sketcher.Constraint("DistanceX", 6, 3, 8, 3, Q("7.97 mm")),
])
sketch3.setExpression("Constraints[54]", "Params.sketch3_diameter")
sketch3.setExpression("Constraints[55]", "Params.sketch3_diameter2")
pad3 = doc.addObject("PartDesign::Pad", "Pad002")
body.addObject(pad3)
pad3.Profile = sketch3
pad3.Type = "TwoLengths"
pad3.setExpression("Length", "Params.pad3_length")
pad3.setExpression("Length2", "Params.pad3_length2")
pad3.Reversed = True

sketch4 = doc.addObject("Sketcher::SketchObject", "Sketch003")
body.addObject(sketch4)
sketch4.AttachmentSupport = (doc.XZ_Plane, [""])
sketch4.MapMode = "FlatFace"
sketch4.addGeometry([
    Part.LineSegment(V(20.9, 37.5, 0), V(19, 37.5, 0)),
    Part.ArcOfCircle(Part.Circle(V(15.9, 39.9, 0), V(0, 0, 1), 3.8), math.radians(-37), math.radians(37)),
    Part.LineSegment(V(19, 42.1, 0), V(20.9, 42.1, 0)),
    Part.ArcOfCircle(Part.Circle(V(23.9, 39.9, 0), V(0, 0, 1), 3.8), math.radians(143), math.radians(217)),
    Part.ArcOfCircle(Part.Circle(V(15.9, 39.9, 0), V(0, 0, 1), 3.8), math.radians(143), math.radians(217)),
    Part.LineSegment(V(12.9, 37.5, 0), V(11, 37.5, 0)),
    Part.ArcOfCircle(Part.Circle(V(8, 39.9, 0), V(0, 0, 1), 3.8), math.radians(-37), math.radians(37)),
    Part.LineSegment(V(11, 42.1, 0), V(12.9, 42.1, 0)),
    Part.ArcOfCircle(Part.Circle(V(8, 39.9, 0), V(0, 0, 1), 3.8), math.radians(143), math.radians(217)),
    Part.LineSegment(V(4.9, 37.5, 0), V(3, 37.5, 0)),
    Part.ArcOfCircle(Part.Circle(V(0, 39.9, 0), V(0, 0, 1), 3.8), math.radians(-37), math.radians(37)),
    Part.LineSegment(V(3, 42.1, 0), V(4.9, 42.1, 0)),
    Part.ArcOfCircle(Part.Circle(V(0, 39.9, 0), V(0, 0, 1), 3.8), math.radians(143), math.radians(217)),
    Part.LineSegment(V(-3, 37.5, 0), V(-4.9, 37.5, 0)),
    Part.ArcOfCircle(Part.Circle(V(-8, 39.9, 0), V(0, 0, 1), 3.8), math.radians(-37), math.radians(37)),
    Part.LineSegment(V(-4.9, 42.1, 0), V(-3, 42.1, 0)),
    Part.LineSegment(V(11, -37.5, 0), V(12.9, -37.5, 0)),
    Part.ArcOfCircle(Part.Circle(V(15.9, -39.9, 0), V(0, 0, 1), 3.8), math.radians(143), math.radians(217)),
    Part.LineSegment(V(12.9, -42.1, 0), V(11, -42.1, 0)),
    Part.ArcOfCircle(Part.Circle(V(8, -39.9, 0), V(0, 0, 1), 3.8), math.radians(-37), math.radians(37)),
    Part.ArcOfCircle(Part.Circle(V(15.9, -39.9, 0), V(0, 0, 1), 3.8), math.radians(-37), math.radians(37)),
    Part.LineSegment(V(19, -37.5, 0), V(20.9, -37.5, 0)),
    Part.ArcOfCircle(Part.Circle(V(23.9, -39.9, 0), V(0, 0, 1), 3.8), math.radians(143), math.radians(217)),
    Part.LineSegment(V(20.9, -42.1, 0), V(19, -42.1, 0)),
    Part.LineSegment(V(-4.9, -37.5, 0), V(-3, -37.5, 0)),
    Part.ArcOfCircle(Part.Circle(V(0, -39.9, 0), V(0, 0, 1), 3.8), math.radians(143), math.radians(217)),
    Part.LineSegment(V(-3, -42.1, 0), V(-4.9, -42.1, 0)),
    Part.ArcOfCircle(Part.Circle(V(-8, -39.9, 0), V(0, 0, 1), 3.8), math.radians(-37), math.radians(37)),
    Part.ArcOfCircle(Part.Circle(V(0, -39.9, 0), V(0, 0, 1), 3.8), math.radians(-37), math.radians(37)),
    Part.LineSegment(V(3, -37.5, 0), V(4.9, -37.5, 0)),
    Part.ArcOfCircle(Part.Circle(V(8, -39.9, 0), V(0, 0, 1), 3.8), math.radians(143), math.radians(217)),
    Part.LineSegment(V(4.9, -42.1, 0), V(3, -42.1, 0)),
    Part.ArcOfCircle(Part.Circle(V(-8, 39.9, 0), V(0, 0, 1), 3.8), math.radians(143), math.radians(217)),
    Part.LineSegment(V(-11, 37.5, 0), V(-12.9, 37.5, 0)),
    Part.ArcOfCircle(Part.Circle(V(-15.9, 39.9, 0), V(0, 0, 1), 3.8), math.radians(-37), math.radians(37)),
    Part.LineSegment(V(-12.9, 42.1, 0), V(-11, 42.1, 0)),
    Part.LineSegment(V(-12.9, -37.5, 0), V(-11, -37.5, 0)),
    Part.ArcOfCircle(Part.Circle(V(-8, -39.9, 0), V(0, 0, 1), 3.8), math.radians(143), math.radians(217)),
    Part.LineSegment(V(-11, -42.1, 0), V(-12.9, -42.1, 0)),
    Part.ArcOfCircle(Part.Circle(V(-15.9, -39.9, 0), V(0, 0, 1), 3.8), math.radians(-37), math.radians(37)),
    Part.ArcOfCircle(Part.Circle(V(-15.9, 39.9, 0), V(0, 0, 1), 3.8), math.radians(143), math.radians(217)),
    Part.LineSegment(V(-19, 37.5, 0), V(-20.9, 37.5, 0)),
    Part.ArcOfCircle(Part.Circle(V(-23.9, 39.9, 0), V(0, 0, 1), 3.8), math.radians(-37), math.radians(37)),
    Part.LineSegment(V(-20.9, 42.1, 0), V(-19, 42.1, 0)),
    Part.LineSegment(V(-20.9, -37.5, 0), V(-19, -37.5, 0)),
    Part.ArcOfCircle(Part.Circle(V(-15.9, -39.9, 0), V(0, 0, 1), 3.8), math.radians(143), math.radians(217)),
    Part.LineSegment(V(-19, -42.1, 0), V(-20.9, -42.1, 0)),
    Part.ArcOfCircle(Part.Circle(V(-23.9, -39.9, 0), V(0, 0, 1), 3.8), math.radians(-37), math.radians(37)),
], False)
sketch4.addConstraint([
    Sketcher.Constraint("Coincident", 0, 2, 1, 1),
    Sketcher.Constraint("Coincident", 1, 2, 2, 1),
    Sketcher.Constraint("Coincident", 2, 2, 3, 1),
    Sketcher.Constraint("Coincident", 3, 2, 0, 1),
    Sketcher.Constraint("Coincident", 4, 2, 5, 1),
    Sketcher.Constraint("Coincident", 5, 2, 6, 1),
    Sketcher.Constraint("Coincident", 6, 2, 7, 1),
    Sketcher.Constraint("Coincident", 7, 2, 4, 1),
    Sketcher.Constraint("Coincident", 8, 2, 9, 1),
    Sketcher.Constraint("Coincident", 9, 2, 10, 1),
    Sketcher.Constraint("Coincident", 10, 2, 11, 1),
    Sketcher.Constraint("Coincident", 11, 2, 8, 1),
    Sketcher.Constraint("Coincident", 12, 2, 13, 1),
    Sketcher.Constraint("Coincident", 13, 2, 14, 1),
    Sketcher.Constraint("Coincident", 14, 2, 15, 1),
    Sketcher.Constraint("Coincident", 15, 2, 12, 1),
    Sketcher.Constraint("Coincident", 16, 2, 17, 1),
    Sketcher.Constraint("Coincident", 17, 2, 18, 1),
    Sketcher.Constraint("Coincident", 18, 2, 19, 1),
    Sketcher.Constraint("Coincident", 19, 2, 16, 1),
    Sketcher.Constraint("Coincident", 20, 2, 21, 1),
    Sketcher.Constraint("Coincident", 21, 2, 22, 1),
    Sketcher.Constraint("Coincident", 22, 2, 23, 1),
    Sketcher.Constraint("Coincident", 23, 2, 20, 1),
    Sketcher.Constraint("Coincident", 24, 2, 25, 1),
    Sketcher.Constraint("Coincident", 25, 2, 26, 1),
    Sketcher.Constraint("Coincident", 26, 2, 27, 1),
    Sketcher.Constraint("Coincident", 27, 2, 24, 1),
    Sketcher.Constraint("Coincident", 28, 2, 29, 1),
    Sketcher.Constraint("Coincident", 29, 2, 30, 1),
    Sketcher.Constraint("Coincident", 30, 2, 31, 1),
    Sketcher.Constraint("Coincident", 31, 2, 28, 1),
    Sketcher.Constraint("Coincident", 32, 2, 33, 1),
    Sketcher.Constraint("Coincident", 33, 2, 34, 1),
    Sketcher.Constraint("Coincident", 34, 2, 35, 1),
    Sketcher.Constraint("Coincident", 35, 2, 32, 1),
    Sketcher.Constraint("Coincident", 36, 2, 37, 1),
    Sketcher.Constraint("Coincident", 37, 2, 38, 1),
    Sketcher.Constraint("Coincident", 38, 2, 39, 1),
    Sketcher.Constraint("Coincident", 39, 2, 36, 1),
    Sketcher.Constraint("Coincident", 40, 2, 41, 1),
    Sketcher.Constraint("Coincident", 41, 2, 42, 1),
    Sketcher.Constraint("Coincident", 42, 2, 43, 1),
    Sketcher.Constraint("Coincident", 43, 2, 40, 1),
    Sketcher.Constraint("Coincident", 44, 2, 45, 1),
    Sketcher.Constraint("Coincident", 45, 2, 46, 1),
    Sketcher.Constraint("Coincident", 46, 2, 47, 1),
    Sketcher.Constraint("Coincident", 47, 2, 44, 1),
    Sketcher.Constraint("Horizontal", 0),
    Sketcher.Constraint("Horizontal", 2),
    Sketcher.Constraint("Horizontal", 5),
    Sketcher.Constraint("Horizontal", 7),
    Sketcher.Constraint("Horizontal", 9),
    Sketcher.Constraint("Horizontal", 11),
    Sketcher.Constraint("Horizontal", 13),
    Sketcher.Constraint("Horizontal", 15),
    Sketcher.Constraint("Horizontal", 16),
    Sketcher.Constraint("Horizontal", 18),
    Sketcher.Constraint("Horizontal", 21),
    Sketcher.Constraint("Horizontal", 23),
    Sketcher.Constraint("Horizontal", 24),
    Sketcher.Constraint("Horizontal", 26),
    Sketcher.Constraint("Horizontal", 29),
    Sketcher.Constraint("Horizontal", 31),
    Sketcher.Constraint("Horizontal", 33),
    Sketcher.Constraint("Horizontal", 35),
    Sketcher.Constraint("Horizontal", 36),
    Sketcher.Constraint("Horizontal", 38),
    Sketcher.Constraint("Horizontal", 41),
    Sketcher.Constraint("Horizontal", 43),
    Sketcher.Constraint("Horizontal", 44),
    Sketcher.Constraint("Horizontal", 46),
    Sketcher.Constraint("Coincident", 4, 3, 1, 3),
    Sketcher.Constraint("Coincident", 8, 3, 6, 3),
    Sketcher.Constraint("Coincident", 12, 3, 10, 3),
    Sketcher.Constraint("Coincident", 20, 3, 17, 3),
    Sketcher.Constraint("Coincident", 28, 3, 25, 3),
    Sketcher.Constraint("Coincident", 30, 3, 19, 3),
    Sketcher.Constraint("Coincident", 32, 3, 14, 3),
    Sketcher.Constraint("Coincident", 37, 3, 27, 3),
    Sketcher.Constraint("Coincident", 40, 3, 34, 3),
    Sketcher.Constraint("Coincident", 45, 3, 39, 3),
    Sketcher.Constraint("Equal", 1, 3),
    Sketcher.Constraint("Equal", 3, 4),
    Sketcher.Constraint("Equal", 4, 6),
    Sketcher.Constraint("Equal", 6, 8),
    Sketcher.Constraint("Equal", 8, 10),
    Sketcher.Constraint("Equal", 10, 12),
    Sketcher.Constraint("Equal", 12, 14),
    Sketcher.Constraint("Equal", 14, 17),
    Sketcher.Constraint("Equal", 17, 19),
    Sketcher.Constraint("Equal", 19, 20),
    Sketcher.Constraint("Equal", 20, 22),
    Sketcher.Constraint("Equal", 22, 25),
    Sketcher.Constraint("Equal", 25, 27),
    Sketcher.Constraint("Equal", 27, 28),
    Sketcher.Constraint("Equal", 28, 30),
    Sketcher.Constraint("Equal", 30, 32),
    Sketcher.Constraint("Equal", 32, 34),
    Sketcher.Constraint("Equal", 34, 37),
    Sketcher.Constraint("Equal", 37, 39),
    Sketcher.Constraint("Equal", 39, 40),
    Sketcher.Constraint("Equal", 40, 42),
    Sketcher.Constraint("Equal", 42, 45),
    Sketcher.Constraint("Equal", 45, 47),
    Sketcher.Constraint("Symmetric", 14, 3, 19, 3, -1, 1),
    Sketcher.Constraint("Symmetric", 10, 3, 25, 3, -1, 1),
    Sketcher.Constraint("Symmetric", 6, 3, 27, 3, -1, 1),
    Sketcher.Constraint("Symmetric", 17, 3, 34, 3, -1, 1),
    Sketcher.Constraint("Symmetric", 1, 3, 39, 3, -1, 1),
    Sketcher.Constraint("Symmetric", 22, 3, 42, 3, -1, 1),
    Sketcher.Constraint("Symmetric", 3, 3, 47, 3, -1, 1),
    Sketcher.Constraint("Symmetric", 6, 3, 14, 3, -2),
    Sketcher.Constraint("Symmetric", 1, 3, 34, 3, -2),
    Sketcher.Constraint("Symmetric", 3, 3, 42, 3, -2),
    Sketcher.Constraint("Symmetric", 9, 2, 12, 2, -2),
    Sketcher.Constraint("Horizontal", 1, 3, 3, 3),
    Sketcher.Constraint("Horizontal", 4, 3, 6, 3),
    Sketcher.Constraint("Horizontal", 8, 3, 10, 3),
    Sketcher.Constraint("Horizontal", 3, 2, 4, 2),
    Sketcher.Constraint("Horizontal", 2, 2, 6, 2),
    Sketcher.Constraint("Horizontal", 5, 2, 8, 2),
    Sketcher.Constraint("Horizontal", 7, 2, 10, 2),
    Sketcher.Constraint("Horizontal", 11, 2, 14, 2),
    Sketcher.Constraint("Horizontal", 19, 2, 20, 2),
    Sketcher.Constraint("Horizontal", 18, 2, 22, 2),
    Sketcher.Constraint("Horizontal", 21, 2, 24, 2),
    Sketcher.Constraint("Horizontal", 23, 2, 25, 2),
    Sketcher.Constraint("Horizontal", 27, 2, 28, 2),
    Sketcher.Constraint("Horizontal", 26, 2, 30, 2),
    Sketcher.Constraint("Horizontal", 13, 2, 32, 2),
    Sketcher.Constraint("Horizontal", 15, 2, 34, 2),
    Sketcher.Constraint("Horizontal", 29, 2, 36, 2),
    Sketcher.Constraint("Horizontal", 31, 2, 37, 2),
    Sketcher.Constraint("Horizontal", 33, 2, 40, 2),
    Sketcher.Constraint("Horizontal", 35, 2, 42, 2),
    Sketcher.Constraint("Horizontal", 39, 2, 44, 2),
    Sketcher.Constraint("Horizontal", 38, 2, 45, 2),
    Sketcher.Constraint("Vertical", 0, 2, 1, 2),
    Sketcher.Constraint("Vertical", 7, 2, 16, 2),
    Sketcher.Constraint("Vertical", 16, 2, 17, 2),
    Sketcher.Constraint("Equal", 2, 5),
    Sketcher.Constraint("Equal", 7, 9),
    Sketcher.Constraint("Radius", 1, Q("3.8 mm")),
    Sketcher.Constraint("DistanceX", -1, 1, 6, 3, Q("7.97 mm")),
    Sketcher.Constraint("DistanceY", -1, 1, 1, 3, Q("39.85 mm")),
    Sketcher.Constraint("DistanceY", -1, 1, 0, 2, Q("37.55 mm")),
])
sketch4.setExpression("Constraints[143]", "Params.sketch4_radius")
pad4 = doc.addObject("PartDesign::Pad", "Pad003")
body.addObject(pad4)
pad4.Profile = sketch4
pad4.Type = "TwoLengths"
pad4.setExpression("Length", "Params.pad4_length")
pad4.setExpression("Length2", "Params.pad4_length2")
pad4.Reversed = True

doc.recompute()
